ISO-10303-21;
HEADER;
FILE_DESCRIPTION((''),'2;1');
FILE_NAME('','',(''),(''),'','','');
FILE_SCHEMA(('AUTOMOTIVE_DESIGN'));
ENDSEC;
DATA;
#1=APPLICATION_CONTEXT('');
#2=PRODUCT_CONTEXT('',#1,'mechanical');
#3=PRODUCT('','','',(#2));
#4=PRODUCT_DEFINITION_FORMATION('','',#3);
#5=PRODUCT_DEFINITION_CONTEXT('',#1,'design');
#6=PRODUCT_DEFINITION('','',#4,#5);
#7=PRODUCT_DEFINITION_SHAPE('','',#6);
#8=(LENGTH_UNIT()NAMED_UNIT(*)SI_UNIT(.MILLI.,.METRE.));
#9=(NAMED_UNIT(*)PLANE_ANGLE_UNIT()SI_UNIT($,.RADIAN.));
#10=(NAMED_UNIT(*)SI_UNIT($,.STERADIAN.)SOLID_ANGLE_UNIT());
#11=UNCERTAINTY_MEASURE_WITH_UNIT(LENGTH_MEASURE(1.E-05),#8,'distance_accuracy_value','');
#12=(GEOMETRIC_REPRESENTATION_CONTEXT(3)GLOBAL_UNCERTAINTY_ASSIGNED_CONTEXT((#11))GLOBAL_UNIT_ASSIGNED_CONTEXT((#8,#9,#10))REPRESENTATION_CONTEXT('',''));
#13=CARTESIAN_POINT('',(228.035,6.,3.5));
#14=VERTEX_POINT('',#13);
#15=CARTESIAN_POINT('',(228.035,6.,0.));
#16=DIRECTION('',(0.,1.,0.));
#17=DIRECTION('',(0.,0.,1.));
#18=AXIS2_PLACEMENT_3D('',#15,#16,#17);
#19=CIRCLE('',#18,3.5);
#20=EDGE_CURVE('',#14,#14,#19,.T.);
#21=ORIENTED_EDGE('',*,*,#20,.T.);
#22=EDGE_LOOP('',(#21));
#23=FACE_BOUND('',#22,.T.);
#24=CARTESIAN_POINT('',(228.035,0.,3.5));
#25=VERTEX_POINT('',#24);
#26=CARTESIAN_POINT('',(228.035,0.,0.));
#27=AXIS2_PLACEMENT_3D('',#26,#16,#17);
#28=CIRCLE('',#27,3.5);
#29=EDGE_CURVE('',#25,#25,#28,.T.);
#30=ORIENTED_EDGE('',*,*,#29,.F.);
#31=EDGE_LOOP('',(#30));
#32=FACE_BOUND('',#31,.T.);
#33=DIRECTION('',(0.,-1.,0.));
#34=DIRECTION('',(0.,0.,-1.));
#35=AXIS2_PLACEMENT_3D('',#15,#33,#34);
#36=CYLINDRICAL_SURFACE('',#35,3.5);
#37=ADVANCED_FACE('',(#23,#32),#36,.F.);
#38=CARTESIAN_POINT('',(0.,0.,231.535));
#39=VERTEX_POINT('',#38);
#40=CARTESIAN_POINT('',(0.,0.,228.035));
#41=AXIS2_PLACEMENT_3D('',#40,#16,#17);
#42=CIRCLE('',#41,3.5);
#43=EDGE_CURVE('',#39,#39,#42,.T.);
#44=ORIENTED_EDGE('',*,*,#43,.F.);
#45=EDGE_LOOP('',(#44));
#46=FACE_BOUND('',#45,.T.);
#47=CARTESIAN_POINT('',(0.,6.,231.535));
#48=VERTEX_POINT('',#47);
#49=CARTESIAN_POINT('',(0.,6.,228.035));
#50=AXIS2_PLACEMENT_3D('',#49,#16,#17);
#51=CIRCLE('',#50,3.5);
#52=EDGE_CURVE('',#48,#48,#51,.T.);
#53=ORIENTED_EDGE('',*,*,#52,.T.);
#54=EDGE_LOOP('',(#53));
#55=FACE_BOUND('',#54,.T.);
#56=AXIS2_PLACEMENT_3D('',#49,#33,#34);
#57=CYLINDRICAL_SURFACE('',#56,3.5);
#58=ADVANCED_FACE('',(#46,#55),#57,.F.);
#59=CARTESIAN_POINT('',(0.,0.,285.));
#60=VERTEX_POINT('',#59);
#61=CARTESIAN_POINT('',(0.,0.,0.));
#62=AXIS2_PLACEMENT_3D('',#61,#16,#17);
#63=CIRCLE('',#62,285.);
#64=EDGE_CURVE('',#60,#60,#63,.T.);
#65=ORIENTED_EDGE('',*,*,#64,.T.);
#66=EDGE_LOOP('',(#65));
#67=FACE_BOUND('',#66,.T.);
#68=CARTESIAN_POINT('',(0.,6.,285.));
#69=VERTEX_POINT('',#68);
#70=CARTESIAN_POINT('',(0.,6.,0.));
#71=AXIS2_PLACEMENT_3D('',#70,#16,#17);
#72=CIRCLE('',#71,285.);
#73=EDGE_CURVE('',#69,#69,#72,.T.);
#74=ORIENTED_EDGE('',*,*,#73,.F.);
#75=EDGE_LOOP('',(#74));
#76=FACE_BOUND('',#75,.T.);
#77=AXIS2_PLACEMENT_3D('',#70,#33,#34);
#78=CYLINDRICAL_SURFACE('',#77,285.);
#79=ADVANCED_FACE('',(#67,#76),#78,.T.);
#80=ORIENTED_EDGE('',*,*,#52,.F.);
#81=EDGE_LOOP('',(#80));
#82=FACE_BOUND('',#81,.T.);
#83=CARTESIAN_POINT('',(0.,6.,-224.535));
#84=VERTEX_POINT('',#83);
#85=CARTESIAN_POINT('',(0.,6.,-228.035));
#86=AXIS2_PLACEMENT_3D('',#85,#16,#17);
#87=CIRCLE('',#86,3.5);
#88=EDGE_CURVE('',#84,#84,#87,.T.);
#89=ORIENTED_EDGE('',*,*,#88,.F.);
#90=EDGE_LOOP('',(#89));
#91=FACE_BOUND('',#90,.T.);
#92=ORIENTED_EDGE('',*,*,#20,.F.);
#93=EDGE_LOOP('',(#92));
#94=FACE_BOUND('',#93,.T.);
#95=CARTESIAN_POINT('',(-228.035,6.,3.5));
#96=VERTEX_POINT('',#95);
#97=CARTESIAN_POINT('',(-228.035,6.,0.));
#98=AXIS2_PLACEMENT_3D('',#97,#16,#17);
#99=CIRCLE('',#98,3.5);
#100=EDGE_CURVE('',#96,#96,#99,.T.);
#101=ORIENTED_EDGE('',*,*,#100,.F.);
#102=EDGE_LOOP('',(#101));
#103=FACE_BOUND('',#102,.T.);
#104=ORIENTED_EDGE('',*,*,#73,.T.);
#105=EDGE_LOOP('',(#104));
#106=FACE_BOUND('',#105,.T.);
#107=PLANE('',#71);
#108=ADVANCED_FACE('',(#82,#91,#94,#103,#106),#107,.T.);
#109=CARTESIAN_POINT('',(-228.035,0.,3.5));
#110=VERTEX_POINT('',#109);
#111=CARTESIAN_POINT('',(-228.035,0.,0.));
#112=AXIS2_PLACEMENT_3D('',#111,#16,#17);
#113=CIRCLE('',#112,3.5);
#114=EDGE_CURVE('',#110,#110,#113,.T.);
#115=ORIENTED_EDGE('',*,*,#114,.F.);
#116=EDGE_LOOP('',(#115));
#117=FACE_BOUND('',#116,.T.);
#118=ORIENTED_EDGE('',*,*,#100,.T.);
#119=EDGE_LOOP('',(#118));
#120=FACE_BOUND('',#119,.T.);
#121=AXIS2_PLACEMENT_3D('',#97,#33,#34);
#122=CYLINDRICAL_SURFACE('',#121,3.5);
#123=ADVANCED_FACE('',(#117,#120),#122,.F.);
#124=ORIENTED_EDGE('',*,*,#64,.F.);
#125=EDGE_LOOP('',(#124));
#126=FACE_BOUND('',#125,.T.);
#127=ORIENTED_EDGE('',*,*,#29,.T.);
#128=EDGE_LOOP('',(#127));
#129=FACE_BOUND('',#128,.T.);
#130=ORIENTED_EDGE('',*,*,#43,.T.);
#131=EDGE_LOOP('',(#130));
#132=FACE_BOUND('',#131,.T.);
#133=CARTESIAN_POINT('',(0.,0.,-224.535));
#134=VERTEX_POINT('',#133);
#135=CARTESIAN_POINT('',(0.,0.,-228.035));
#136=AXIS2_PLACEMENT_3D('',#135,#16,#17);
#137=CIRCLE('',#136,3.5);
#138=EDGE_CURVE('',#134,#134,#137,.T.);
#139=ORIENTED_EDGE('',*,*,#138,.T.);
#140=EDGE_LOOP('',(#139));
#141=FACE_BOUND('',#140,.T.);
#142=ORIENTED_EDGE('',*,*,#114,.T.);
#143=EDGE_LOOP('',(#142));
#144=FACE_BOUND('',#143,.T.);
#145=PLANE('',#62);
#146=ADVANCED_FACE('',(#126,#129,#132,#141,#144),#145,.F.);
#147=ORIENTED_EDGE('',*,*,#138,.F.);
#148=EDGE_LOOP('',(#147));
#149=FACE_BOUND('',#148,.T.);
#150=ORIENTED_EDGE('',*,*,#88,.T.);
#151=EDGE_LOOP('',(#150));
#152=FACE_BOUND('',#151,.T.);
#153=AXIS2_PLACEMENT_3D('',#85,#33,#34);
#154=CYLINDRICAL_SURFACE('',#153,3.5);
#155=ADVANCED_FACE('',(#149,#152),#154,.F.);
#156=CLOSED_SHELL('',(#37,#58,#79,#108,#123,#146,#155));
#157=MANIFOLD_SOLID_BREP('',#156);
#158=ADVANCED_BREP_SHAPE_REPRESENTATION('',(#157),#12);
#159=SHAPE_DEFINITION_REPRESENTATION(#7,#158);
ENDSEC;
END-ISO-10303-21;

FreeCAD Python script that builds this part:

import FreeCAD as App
import Part
import Sketcher
Q = App.Units.Quantity

doc = App.newDocument("Part")
body = doc.addObject("PartDesign::Body", "Body")

# Sketch on XZ plane
sketch1 = doc.addObject("Sketcher::SketchObject", "Sketch")
body.addObject(sketch1)
sketch1.AttachmentSupport = (doc.XZ_Plane, [""])
sketch1.MapMode = "FlatFace"
sketch1.addGeometry(Part.Circle(App.Vector(0, 0, 0), App.Vector(0, 0, 1), 285), False)
sketch1.addConstraint([
    Sketcher.Constraint("Coincident", 0, 3, -1, 1),
    Sketcher.Constraint("Diameter", 0, Q("570 mm")),
])
pad1 = doc.addObject("PartDesign::Pad", "Pad")
body.addObject(pad1)
pad1.Profile = sketch1
pad1.Length = 6
pad1.Reversed = True

# Sketch on XZ plane
sketch2 = doc.addObject("Sketcher::SketchObject", "Sketch001")
body.addObject(sketch2)
sketch2.AttachmentSupport = (doc.XZ_Plane, [""])
sketch2.MapMode = "FlatFace"
sketch2.addGeometry([
    Part.Circle(App.Vector(228.035, 0, 0), App.Vector(0, 0, 1), 3.5),
    Part.Circle(App.Vector(0, 228.035, 0), App.Vector(0, 0, 1), 3.5),
    Part.Circle(App.Vector(-228.035, 0, 0), App.Vector(0, 0, 1), 3.5),
    Part.Circle(App.Vector(0, -228.035, 0), App.Vector(0, 0, 1), 3.5),
], False)
sketch2.addConstraint([
    Sketcher.Constraint("Equal", 0, 1),
    Sketcher.Constraint("Equal", 1, 2),
    Sketcher.Constraint("Equal", 2, 3),
    Sketcher.Constraint("Symmetric", 0, 3, 2, 3, -1, 1),
    Sketcher.Constraint("Symmetric", 1, 3, 3, 3, -1, 1),
    Sketcher.Constraint("PointOnObject", 0, 3, -1),
    Sketcher.Constraint("PointOnObject", 1, 3, -2),
    Sketcher.Constraint("Diameter", 0, Q("7 mm")),
    Sketcher.Constraint("DistanceX", 2, 3, 0, 3, Q("456.07 mm")),
    Sketcher.Constraint("DistanceY", 3, 3, 1, 3, Q("456.07 mm")),
])
pocket1 = doc.addObject("PartDesign::Pocket", "Pocket")
body.addObject(pocket1)
pocket1.Profile = sketch2
pocket1.Type = "ThroughAll"

doc.recompute()
